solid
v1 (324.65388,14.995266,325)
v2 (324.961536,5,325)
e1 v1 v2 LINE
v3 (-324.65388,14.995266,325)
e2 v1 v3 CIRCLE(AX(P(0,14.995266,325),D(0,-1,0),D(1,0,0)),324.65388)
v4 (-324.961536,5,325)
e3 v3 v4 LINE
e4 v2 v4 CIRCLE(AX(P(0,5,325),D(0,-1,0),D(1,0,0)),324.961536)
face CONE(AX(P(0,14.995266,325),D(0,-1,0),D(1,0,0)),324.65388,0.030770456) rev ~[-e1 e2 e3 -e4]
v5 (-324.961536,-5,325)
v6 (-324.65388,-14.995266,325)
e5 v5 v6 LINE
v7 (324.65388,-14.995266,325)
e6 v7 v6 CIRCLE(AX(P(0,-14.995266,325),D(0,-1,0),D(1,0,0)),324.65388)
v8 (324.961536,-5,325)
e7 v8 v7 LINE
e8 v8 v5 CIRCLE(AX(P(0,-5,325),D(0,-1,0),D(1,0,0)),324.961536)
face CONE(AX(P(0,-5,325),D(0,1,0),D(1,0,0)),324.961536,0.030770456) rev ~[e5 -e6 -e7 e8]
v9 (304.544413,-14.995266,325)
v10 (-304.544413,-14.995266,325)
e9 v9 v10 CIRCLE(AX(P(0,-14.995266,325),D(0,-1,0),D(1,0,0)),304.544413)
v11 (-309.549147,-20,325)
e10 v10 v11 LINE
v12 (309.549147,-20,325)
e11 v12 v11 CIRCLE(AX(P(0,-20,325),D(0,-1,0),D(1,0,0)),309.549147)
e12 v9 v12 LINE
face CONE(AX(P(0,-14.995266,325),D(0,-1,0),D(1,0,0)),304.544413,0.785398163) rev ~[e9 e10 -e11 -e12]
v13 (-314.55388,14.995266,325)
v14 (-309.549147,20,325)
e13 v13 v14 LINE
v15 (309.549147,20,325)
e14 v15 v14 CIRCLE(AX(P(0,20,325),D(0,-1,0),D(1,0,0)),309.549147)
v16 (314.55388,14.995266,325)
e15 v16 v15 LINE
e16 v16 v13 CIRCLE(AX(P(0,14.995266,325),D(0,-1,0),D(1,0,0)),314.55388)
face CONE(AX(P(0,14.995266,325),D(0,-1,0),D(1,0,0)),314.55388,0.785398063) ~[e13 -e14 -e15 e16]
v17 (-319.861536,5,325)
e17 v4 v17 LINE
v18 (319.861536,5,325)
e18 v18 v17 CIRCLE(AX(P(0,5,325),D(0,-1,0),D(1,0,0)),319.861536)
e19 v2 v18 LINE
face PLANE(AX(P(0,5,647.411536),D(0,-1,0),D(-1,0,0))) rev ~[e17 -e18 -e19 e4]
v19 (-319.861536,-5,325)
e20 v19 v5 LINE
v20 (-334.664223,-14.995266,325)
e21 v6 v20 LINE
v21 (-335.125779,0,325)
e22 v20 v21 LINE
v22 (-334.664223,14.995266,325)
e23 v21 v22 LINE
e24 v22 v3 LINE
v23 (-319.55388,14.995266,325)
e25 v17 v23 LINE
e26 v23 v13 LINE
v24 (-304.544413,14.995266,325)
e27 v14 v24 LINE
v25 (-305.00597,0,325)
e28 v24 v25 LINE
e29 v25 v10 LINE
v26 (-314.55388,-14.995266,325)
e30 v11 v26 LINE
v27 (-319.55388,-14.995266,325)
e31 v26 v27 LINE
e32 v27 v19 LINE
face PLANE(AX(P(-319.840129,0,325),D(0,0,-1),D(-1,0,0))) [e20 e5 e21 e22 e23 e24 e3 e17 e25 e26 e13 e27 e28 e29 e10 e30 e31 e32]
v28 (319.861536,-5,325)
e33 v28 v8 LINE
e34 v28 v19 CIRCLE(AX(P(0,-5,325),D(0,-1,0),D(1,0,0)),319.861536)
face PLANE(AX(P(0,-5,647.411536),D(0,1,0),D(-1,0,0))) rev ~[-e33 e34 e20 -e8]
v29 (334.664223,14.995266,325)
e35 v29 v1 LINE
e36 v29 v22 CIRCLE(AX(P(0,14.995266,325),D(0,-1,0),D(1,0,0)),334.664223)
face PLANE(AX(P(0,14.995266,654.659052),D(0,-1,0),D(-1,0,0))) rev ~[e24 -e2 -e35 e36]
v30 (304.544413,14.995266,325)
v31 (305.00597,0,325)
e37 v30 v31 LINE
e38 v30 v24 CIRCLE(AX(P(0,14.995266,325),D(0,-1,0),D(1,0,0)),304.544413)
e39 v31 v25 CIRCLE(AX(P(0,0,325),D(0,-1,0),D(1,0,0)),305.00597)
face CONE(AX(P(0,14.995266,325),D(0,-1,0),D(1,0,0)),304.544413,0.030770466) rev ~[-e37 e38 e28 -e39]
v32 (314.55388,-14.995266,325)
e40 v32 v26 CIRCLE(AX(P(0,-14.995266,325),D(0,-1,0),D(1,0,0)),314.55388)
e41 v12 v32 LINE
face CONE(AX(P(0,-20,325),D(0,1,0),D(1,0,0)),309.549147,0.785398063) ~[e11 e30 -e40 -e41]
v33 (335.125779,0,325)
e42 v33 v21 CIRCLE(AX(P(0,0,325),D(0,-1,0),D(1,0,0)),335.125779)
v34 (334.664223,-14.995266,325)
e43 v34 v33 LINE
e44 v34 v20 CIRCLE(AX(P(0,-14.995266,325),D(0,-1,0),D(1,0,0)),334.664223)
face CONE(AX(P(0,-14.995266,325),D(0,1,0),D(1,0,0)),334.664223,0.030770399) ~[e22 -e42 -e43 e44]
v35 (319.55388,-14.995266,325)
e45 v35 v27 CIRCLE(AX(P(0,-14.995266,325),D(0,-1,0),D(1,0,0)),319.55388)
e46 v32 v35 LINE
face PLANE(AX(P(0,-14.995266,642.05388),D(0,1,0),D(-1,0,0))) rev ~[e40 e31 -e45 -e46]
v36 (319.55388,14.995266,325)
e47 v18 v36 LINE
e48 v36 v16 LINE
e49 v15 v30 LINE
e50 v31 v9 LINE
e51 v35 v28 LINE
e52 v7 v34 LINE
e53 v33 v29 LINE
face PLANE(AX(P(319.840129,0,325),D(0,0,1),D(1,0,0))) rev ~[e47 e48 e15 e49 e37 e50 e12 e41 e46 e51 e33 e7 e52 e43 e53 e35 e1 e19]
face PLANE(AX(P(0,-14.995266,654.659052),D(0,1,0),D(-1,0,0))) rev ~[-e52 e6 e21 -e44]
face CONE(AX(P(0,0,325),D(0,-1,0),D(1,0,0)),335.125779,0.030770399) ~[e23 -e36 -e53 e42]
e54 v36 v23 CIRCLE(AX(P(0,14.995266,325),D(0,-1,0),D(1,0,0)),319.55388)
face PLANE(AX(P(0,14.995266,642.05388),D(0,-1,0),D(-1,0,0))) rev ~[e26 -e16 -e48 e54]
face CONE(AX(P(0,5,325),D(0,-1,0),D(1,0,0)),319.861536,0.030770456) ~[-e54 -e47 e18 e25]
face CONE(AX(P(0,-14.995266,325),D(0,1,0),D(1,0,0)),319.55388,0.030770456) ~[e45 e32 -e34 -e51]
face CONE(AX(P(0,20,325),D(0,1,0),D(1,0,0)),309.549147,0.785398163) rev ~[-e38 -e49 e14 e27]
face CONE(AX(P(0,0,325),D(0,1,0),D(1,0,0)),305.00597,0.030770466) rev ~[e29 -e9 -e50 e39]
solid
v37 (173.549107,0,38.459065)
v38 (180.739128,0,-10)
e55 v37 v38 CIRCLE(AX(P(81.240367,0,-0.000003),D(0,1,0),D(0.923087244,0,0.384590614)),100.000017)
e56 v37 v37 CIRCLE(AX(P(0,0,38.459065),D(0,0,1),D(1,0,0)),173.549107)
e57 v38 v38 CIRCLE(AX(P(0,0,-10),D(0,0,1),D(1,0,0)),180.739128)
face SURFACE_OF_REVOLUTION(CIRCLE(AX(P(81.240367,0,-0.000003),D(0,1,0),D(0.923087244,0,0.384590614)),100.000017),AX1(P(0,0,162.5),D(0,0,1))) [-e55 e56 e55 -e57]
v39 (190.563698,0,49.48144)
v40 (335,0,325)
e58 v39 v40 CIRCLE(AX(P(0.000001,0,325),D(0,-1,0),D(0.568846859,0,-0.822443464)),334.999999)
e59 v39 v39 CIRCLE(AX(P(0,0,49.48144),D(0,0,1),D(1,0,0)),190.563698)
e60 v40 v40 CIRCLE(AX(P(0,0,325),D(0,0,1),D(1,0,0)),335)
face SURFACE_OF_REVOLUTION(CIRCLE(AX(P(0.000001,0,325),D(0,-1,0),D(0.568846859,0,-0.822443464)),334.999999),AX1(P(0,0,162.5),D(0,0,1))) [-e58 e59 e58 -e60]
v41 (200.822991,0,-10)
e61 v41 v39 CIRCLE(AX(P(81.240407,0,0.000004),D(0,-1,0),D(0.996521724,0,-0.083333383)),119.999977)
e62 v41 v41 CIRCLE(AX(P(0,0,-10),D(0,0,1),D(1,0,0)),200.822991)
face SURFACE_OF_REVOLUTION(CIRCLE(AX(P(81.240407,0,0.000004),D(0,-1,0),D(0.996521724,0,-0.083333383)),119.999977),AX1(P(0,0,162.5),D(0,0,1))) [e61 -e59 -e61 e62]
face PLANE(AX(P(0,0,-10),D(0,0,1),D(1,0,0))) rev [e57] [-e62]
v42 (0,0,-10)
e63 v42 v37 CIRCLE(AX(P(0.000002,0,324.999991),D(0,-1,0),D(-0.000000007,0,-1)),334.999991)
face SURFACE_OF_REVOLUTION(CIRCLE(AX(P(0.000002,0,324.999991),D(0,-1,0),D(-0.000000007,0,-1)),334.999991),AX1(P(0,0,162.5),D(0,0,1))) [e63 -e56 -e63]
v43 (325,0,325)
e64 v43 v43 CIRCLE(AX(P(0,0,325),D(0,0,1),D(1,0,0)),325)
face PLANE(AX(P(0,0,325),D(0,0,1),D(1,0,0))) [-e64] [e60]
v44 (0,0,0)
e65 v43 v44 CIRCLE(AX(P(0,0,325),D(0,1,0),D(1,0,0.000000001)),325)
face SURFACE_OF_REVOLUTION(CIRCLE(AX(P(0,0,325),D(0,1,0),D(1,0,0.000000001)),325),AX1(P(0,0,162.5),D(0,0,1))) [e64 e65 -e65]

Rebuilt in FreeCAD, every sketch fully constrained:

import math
import FreeCAD as App
import Part
import Sketcher

V = App.Vector
Q = App.Units.Quantity


def add_polygon(sketch, points):
    """Adds a closed chain of lines whose ends are joined by coincident constraints."""
    first, n = sketch.GeometryCount, len(points)
    for a, b in zip(points, points[1:] + points[:1]):
        sketch.addGeometry(Part.LineSegment(App.Vector(*a, 0), App.Vector(*b, 0)), False)
    for i in range(n):
        sketch.addConstraint(Sketcher.Constraint("Coincident", first + i, 2, first + (i + 1) % n, 1))

doc = App.newDocument("Part")
body = doc.addObject("PartDesign::Body", "Body")

# Sketch on XZ plane
sketch1 = doc.addObject("Sketcher::SketchObject", "Sketch")
body.addObject(sketch1)
sketch1.AttachmentSupport = (doc.XZ_Plane, [""])
sketch1.MapMode = "FlatFace"
sketch1.addGeometry([
    Part.ArcOfCircle(Part.Circle(V(0, 325, 0), V(0, 0, 1), 325), math.radians(-90), math.radians(0)),  # 0
    Part.LineSegment(V(0, 0, 0), V(0, -10, 0)),  # 1
    Part.ArcOfCircle(Part.Circle(V(0, 325, 0), V(0, 0, 1), 335), math.radians(-90), math.radians(-59)),  # 2
    Part.ArcOfCircle(Part.Circle(V(81, 0, 0), V(0, 0, 1), 100), math.radians(-6), math.radians(23)),  # 3
    Part.LineSegment(V(181, -10, 0), V(201, -10, 0)),  # 4
    Part.ArcOfCircle(Part.Circle(V(81, 0, 0), V(0, 0, 1), 120), math.radians(-5), math.radians(24)),  # 5
    Part.ArcOfCircle(Part.Circle(V(0, 325, 0), V(0, 0, 1), 335), math.radians(-55), math.radians(0)),  # 6
    Part.LineSegment(V(335, 325, 0), V(325, 325, 0)),  # 7
], False)
sketch1.addConstraint([
    Sketcher.Constraint("Coincident", 0, 1, 1, 1),
    Sketcher.Constraint("Coincident", 1, 2, 2, 1),
    Sketcher.Constraint("Coincident", 2, 2, 3, 2),
    Sketcher.Constraint("Coincident", 3, 1, 4, 1),
    Sketcher.Constraint("Coincident", 4, 2, 5, 1),
    Sketcher.Constraint("Coincident", 5, 2, 6, 1),
    Sketcher.Constraint("Coincident", 6, 2, 7, 1),
    Sketcher.Constraint("Coincident", 7, 2, 0, 2),
    Sketcher.Constraint("Vertical", 1),
    Sketcher.Constraint("Horizontal", 4),
    Sketcher.Constraint("Horizontal", 7),
    Sketcher.Constraint("Coincident", 0, 1, -1, 1),
    Sketcher.Constraint("Coincident", 2, 3, 0, 3),
    Sketcher.Constraint("Coincident", 6, 3, 0, 3),
    Sketcher.Constraint("PointOnObject", 0, 3, -2),
    Sketcher.Constraint("Horizontal", 1, 2, 3, 1),
    Sketcher.Constraint("Horizontal", 0, 3, 6, 2),
    Sketcher.Constraint("Equal", 7, 1),
    Sketcher.Constraint("Radius", 0, Q("325 mm")),
    Sketcher.Constraint("Radius", 6, Q("334.999999 mm")),
    Sketcher.Constraint("Radius", 3, Q("100.000017 mm")),
    Sketcher.Constraint("Radius", 5, Q("119.999977 mm")),
    Sketcher.Constraint("DistanceX", -1, 1, 5, 2, Q("190.563698 mm")),
    Sketcher.Constraint("DistanceX", 5, 3, 2, 2, Q("92.3087 mm")),
    Sketcher.Constraint("DistanceX", 4, 1, 4, 2, Q("20.083863 mm")),
    Sketcher.Constraint("DistanceX", -1, 1, 3, 1, Q("180.739128 mm")),
])
revolution = doc.addObject("PartDesign::Revolution", "Revolution")
body.addObject(revolution)
revolution.Profile = sketch1
revolution.ReferenceAxis = (sketch1, ["V_Axis"])
revolution.Angle = 360
body2 = doc.addObject("PartDesign::Body", "Body001")

# Sketch on XY plane
sketch2 = doc.addObject("Sketcher::SketchObject", "Sketch001")
body2.addObject(sketch2)
sketch2.AttachmentSupport = (doc.getObject("XY_Plane001"), [""])
sketch2.MapMode = "FlatFace"
sketch2.AttachmentOffset = App.Placement(V(0, 0, 325), App.Rotation())
add_polygon(sketch2, [(334.664223, -14.995266), (335.125779, 0), (334.664223, 14.995266), (324.65388, 14.995266), (324.961536, 5), (319.861536, 5), (319.55388, 14.995266), (314.55388, 14.995266), (309.549147, 20), (304.544413, 14.995266), (305.00597, 0), (304.544413, -14.995266), (309.549147, -20), (314.55388, -14.995266), (319.55388, -14.995266), (319.861536, -5), (324.961536, -5), (324.65388, -14.995266)])  # lines 0-17
sketch2.addConstraint([
    Sketcher.Constraint("Horizontal", 2),
    Sketcher.Constraint("Horizontal", 4),
    Sketcher.Constraint("Horizontal", 6),
    Sketcher.Constraint("Horizontal", 13),
    Sketcher.Constraint("Horizontal", 15),
    Sketcher.Constraint("Horizontal", 17),
    Sketcher.Constraint("Symmetric", 8, 2, 10, 2, -1),
    Sketcher.Constraint("Symmetric", 7, 2, 11, 2, -1),
    Sketcher.Constraint("Symmetric", 6, 2, 12, 2, -1),
    Sketcher.Constraint("Symmetric", 4, 2, 14, 2, -1),
    Sketcher.Constraint("Symmetric", 2, 2, 16, 2, -1),
    Sketcher.Constraint("PointOnObject", 0, 2, -1),
    Sketcher.Constraint("PointOnObject", 9, 2, -1),
    Sketcher.Constraint("Parallel", 1, 3),
    Sketcher.Constraint("Parallel", 3, 5),
    Sketcher.Constraint("Perpendicular", 7, 8),
    Sketcher.Constraint("Parallel", 5, 9),
    Sketcher.Constraint("Parallel", 0, 10),
    Sketcher.Constraint("Perpendicular", 8, 11),
    Sketcher.Constraint("Parallel", 10, 14),
    Sketcher.Constraint("Parallel", 14, 16),
    Sketcher.Constraint("Horizontal", 2, 2, 5, 2),
    Sketcher.Constraint("Horizontal", 6, 2, 8, 2),
    Sketcher.Constraint("DistanceX", 6, 2, 6, 1, Q("5 mm")),
    Sketcher.Constraint("Distance", 3, Q("10 mm")),
    Sketcher.Constraint("DistanceX", 4, 2, 4, 1, Q("5.1 mm")),
    Sketcher.Constraint("DistanceY", -1, 1, 3, 2, Q("5 mm")),
    Sketcher.Constraint("DistanceY", -1, 1, 7, 2, Q("20 mm")),
    Sketcher.Constraint("DistanceX", 2, 2, 0, 2, Q("10.471899 mm")),
    Sketcher.Constraint("Distance", 7, Q("7.077762 mm")),
    Sketcher.Constraint("DistanceX", -1, 1, 0, 2, Q("335.125779 mm")),
])

# Sketch on XZ plane
sketch3 = doc.addObject("Sketcher::SketchObject", "Sketch002")
body2.addObject(sketch3)
sketch3.AttachmentSupport = (doc.getObject("XZ_Plane001"), [""])
sketch3.MapMode = "FlatFace"
sketch3.addGeometry(Part.ArcOfCircle(Part.Circle(V(0, 325, 0), V(0, 0, 1), 335), math.radians(0), math.radians(180)), False)
sketch3.addConstraint([
    Sketcher.Constraint("Symmetric", 0, 1, 0, 2, -2),
    Sketcher.Constraint("Radius", 0, Q("335 mm")),
    Sketcher.Constraint("DistanceY", -1, 1, 0, 3, Q("325 mm")),
    Sketcher.Constraint("DistanceY", -1, 1, 0, 1, Q("325 mm")),
])
doc.recompute()

additivepipe = doc.addObject("PartDesign::AdditivePipe", "AdditivePipe")
body2.addObject(additivepipe)
additivepipe.Profile = sketch2
additivepipe.Spine = (sketch3, ["Edge1"])

doc.recompute()
